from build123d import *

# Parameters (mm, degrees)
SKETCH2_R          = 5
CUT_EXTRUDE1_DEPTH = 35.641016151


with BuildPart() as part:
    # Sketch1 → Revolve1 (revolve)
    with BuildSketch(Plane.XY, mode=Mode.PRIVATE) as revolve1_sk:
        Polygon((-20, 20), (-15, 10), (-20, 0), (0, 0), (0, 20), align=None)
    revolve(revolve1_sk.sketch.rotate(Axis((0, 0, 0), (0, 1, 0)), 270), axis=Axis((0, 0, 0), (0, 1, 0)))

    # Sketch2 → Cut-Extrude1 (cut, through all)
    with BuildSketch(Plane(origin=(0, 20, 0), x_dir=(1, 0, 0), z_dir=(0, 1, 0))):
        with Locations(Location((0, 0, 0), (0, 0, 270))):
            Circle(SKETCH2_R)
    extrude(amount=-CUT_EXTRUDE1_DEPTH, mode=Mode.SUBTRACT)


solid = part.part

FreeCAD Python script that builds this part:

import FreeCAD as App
import Part
import Sketcher

doc = App.newDocument("Part")
body = doc.addObject("PartDesign::Body", "Body")

# Sketch on XY plane
sketch1 = body.newObject("Sketcher::SketchObject", "Sketch")
sketch1.AttachmentSupport = (doc.getObject("XY_Plane"), [""])
sketch1.MapMode = "FlatFace"
sketch1.addGeometry([
    Part.LineSegment(App.Vector(-20, 20, 0), App.Vector(-15, 10, 0)),  # 0
    Part.LineSegment(App.Vector(-15, 10, 0), App.Vector(-20, 0, 0)),  # 1
    Part.LineSegment(App.Vector(-20, 0, 0), App.Vector(0, 0, 0)),  # 2
    Part.LineSegment(App.Vector(0, 0, 0), App.Vector(0, 20, 0)),  # 3
    Part.LineSegment(App.Vector(0, 20, 0), App.Vector(-20, 20, 0)),  # 4
], False)
sketch1.addConstraint([
    Sketcher.Constraint("Coincident", 0, 2, 1, 1),
    Sketcher.Constraint("Coincident", 1, 2, 2, 1),
    Sketcher.Constraint("Coincident", 2, 2, 3, 1),
    Sketcher.Constraint("Coincident", 3, 2, 4, 1),
    Sketcher.Constraint("Coincident", 4, 2, 0, 1),
    Sketcher.Constraint("Horizontal", 2),
    Sketcher.Constraint("Vertical", 3),
    Sketcher.Constraint("Horizontal", 4),
    Sketcher.Constraint("Coincident", 2, 2, -1, 1),
    Sketcher.Constraint("Vertical", 1, 2, 4, 2),
    Sketcher.Constraint("Equal", 4, 3),
    Sketcher.Constraint("Equal", 0, 1),
    Sketcher.Constraint("DistanceX", 2, 1, 2, 2, 20.0),
    Sketcher.Constraint("DistanceX", 0, 2, -1, 1, 15.0),
])
revolution = body.newObject("PartDesign::Revolution", "Revolution")
revolution.Profile = sketch1
revolution.ReferenceAxis = (sketch1, ["V_Axis"])
revolution.Angle = 360

# Sketch on XZ plane
sketch2 = body.newObject("Sketcher::SketchObject", "Sketch001")
sketch2.AttachmentSupport = (doc.getObject("XZ_Plane"), [""])
sketch2.MapMode = "FlatFace"
sketch2.AttachmentOffset = App.Placement(App.Vector(0, 0, -20), App.Rotation())
sketch2.addGeometry(Part.Circle(App.Vector(0, 0, 0), App.Vector(0, 0, 1), 5), False)
sketch2.addConstraint([
    Sketcher.Constraint("Coincident", 0, 3, -1, 1),
    Sketcher.Constraint("Diameter", 0, 10.0),
])
pocket1 = body.newObject("PartDesign::Pocket", "Pocket")
pocket1.Profile = sketch2
pocket1.Type = "ThroughAll"
pocket1.Reversed = True

doc.recompute()
